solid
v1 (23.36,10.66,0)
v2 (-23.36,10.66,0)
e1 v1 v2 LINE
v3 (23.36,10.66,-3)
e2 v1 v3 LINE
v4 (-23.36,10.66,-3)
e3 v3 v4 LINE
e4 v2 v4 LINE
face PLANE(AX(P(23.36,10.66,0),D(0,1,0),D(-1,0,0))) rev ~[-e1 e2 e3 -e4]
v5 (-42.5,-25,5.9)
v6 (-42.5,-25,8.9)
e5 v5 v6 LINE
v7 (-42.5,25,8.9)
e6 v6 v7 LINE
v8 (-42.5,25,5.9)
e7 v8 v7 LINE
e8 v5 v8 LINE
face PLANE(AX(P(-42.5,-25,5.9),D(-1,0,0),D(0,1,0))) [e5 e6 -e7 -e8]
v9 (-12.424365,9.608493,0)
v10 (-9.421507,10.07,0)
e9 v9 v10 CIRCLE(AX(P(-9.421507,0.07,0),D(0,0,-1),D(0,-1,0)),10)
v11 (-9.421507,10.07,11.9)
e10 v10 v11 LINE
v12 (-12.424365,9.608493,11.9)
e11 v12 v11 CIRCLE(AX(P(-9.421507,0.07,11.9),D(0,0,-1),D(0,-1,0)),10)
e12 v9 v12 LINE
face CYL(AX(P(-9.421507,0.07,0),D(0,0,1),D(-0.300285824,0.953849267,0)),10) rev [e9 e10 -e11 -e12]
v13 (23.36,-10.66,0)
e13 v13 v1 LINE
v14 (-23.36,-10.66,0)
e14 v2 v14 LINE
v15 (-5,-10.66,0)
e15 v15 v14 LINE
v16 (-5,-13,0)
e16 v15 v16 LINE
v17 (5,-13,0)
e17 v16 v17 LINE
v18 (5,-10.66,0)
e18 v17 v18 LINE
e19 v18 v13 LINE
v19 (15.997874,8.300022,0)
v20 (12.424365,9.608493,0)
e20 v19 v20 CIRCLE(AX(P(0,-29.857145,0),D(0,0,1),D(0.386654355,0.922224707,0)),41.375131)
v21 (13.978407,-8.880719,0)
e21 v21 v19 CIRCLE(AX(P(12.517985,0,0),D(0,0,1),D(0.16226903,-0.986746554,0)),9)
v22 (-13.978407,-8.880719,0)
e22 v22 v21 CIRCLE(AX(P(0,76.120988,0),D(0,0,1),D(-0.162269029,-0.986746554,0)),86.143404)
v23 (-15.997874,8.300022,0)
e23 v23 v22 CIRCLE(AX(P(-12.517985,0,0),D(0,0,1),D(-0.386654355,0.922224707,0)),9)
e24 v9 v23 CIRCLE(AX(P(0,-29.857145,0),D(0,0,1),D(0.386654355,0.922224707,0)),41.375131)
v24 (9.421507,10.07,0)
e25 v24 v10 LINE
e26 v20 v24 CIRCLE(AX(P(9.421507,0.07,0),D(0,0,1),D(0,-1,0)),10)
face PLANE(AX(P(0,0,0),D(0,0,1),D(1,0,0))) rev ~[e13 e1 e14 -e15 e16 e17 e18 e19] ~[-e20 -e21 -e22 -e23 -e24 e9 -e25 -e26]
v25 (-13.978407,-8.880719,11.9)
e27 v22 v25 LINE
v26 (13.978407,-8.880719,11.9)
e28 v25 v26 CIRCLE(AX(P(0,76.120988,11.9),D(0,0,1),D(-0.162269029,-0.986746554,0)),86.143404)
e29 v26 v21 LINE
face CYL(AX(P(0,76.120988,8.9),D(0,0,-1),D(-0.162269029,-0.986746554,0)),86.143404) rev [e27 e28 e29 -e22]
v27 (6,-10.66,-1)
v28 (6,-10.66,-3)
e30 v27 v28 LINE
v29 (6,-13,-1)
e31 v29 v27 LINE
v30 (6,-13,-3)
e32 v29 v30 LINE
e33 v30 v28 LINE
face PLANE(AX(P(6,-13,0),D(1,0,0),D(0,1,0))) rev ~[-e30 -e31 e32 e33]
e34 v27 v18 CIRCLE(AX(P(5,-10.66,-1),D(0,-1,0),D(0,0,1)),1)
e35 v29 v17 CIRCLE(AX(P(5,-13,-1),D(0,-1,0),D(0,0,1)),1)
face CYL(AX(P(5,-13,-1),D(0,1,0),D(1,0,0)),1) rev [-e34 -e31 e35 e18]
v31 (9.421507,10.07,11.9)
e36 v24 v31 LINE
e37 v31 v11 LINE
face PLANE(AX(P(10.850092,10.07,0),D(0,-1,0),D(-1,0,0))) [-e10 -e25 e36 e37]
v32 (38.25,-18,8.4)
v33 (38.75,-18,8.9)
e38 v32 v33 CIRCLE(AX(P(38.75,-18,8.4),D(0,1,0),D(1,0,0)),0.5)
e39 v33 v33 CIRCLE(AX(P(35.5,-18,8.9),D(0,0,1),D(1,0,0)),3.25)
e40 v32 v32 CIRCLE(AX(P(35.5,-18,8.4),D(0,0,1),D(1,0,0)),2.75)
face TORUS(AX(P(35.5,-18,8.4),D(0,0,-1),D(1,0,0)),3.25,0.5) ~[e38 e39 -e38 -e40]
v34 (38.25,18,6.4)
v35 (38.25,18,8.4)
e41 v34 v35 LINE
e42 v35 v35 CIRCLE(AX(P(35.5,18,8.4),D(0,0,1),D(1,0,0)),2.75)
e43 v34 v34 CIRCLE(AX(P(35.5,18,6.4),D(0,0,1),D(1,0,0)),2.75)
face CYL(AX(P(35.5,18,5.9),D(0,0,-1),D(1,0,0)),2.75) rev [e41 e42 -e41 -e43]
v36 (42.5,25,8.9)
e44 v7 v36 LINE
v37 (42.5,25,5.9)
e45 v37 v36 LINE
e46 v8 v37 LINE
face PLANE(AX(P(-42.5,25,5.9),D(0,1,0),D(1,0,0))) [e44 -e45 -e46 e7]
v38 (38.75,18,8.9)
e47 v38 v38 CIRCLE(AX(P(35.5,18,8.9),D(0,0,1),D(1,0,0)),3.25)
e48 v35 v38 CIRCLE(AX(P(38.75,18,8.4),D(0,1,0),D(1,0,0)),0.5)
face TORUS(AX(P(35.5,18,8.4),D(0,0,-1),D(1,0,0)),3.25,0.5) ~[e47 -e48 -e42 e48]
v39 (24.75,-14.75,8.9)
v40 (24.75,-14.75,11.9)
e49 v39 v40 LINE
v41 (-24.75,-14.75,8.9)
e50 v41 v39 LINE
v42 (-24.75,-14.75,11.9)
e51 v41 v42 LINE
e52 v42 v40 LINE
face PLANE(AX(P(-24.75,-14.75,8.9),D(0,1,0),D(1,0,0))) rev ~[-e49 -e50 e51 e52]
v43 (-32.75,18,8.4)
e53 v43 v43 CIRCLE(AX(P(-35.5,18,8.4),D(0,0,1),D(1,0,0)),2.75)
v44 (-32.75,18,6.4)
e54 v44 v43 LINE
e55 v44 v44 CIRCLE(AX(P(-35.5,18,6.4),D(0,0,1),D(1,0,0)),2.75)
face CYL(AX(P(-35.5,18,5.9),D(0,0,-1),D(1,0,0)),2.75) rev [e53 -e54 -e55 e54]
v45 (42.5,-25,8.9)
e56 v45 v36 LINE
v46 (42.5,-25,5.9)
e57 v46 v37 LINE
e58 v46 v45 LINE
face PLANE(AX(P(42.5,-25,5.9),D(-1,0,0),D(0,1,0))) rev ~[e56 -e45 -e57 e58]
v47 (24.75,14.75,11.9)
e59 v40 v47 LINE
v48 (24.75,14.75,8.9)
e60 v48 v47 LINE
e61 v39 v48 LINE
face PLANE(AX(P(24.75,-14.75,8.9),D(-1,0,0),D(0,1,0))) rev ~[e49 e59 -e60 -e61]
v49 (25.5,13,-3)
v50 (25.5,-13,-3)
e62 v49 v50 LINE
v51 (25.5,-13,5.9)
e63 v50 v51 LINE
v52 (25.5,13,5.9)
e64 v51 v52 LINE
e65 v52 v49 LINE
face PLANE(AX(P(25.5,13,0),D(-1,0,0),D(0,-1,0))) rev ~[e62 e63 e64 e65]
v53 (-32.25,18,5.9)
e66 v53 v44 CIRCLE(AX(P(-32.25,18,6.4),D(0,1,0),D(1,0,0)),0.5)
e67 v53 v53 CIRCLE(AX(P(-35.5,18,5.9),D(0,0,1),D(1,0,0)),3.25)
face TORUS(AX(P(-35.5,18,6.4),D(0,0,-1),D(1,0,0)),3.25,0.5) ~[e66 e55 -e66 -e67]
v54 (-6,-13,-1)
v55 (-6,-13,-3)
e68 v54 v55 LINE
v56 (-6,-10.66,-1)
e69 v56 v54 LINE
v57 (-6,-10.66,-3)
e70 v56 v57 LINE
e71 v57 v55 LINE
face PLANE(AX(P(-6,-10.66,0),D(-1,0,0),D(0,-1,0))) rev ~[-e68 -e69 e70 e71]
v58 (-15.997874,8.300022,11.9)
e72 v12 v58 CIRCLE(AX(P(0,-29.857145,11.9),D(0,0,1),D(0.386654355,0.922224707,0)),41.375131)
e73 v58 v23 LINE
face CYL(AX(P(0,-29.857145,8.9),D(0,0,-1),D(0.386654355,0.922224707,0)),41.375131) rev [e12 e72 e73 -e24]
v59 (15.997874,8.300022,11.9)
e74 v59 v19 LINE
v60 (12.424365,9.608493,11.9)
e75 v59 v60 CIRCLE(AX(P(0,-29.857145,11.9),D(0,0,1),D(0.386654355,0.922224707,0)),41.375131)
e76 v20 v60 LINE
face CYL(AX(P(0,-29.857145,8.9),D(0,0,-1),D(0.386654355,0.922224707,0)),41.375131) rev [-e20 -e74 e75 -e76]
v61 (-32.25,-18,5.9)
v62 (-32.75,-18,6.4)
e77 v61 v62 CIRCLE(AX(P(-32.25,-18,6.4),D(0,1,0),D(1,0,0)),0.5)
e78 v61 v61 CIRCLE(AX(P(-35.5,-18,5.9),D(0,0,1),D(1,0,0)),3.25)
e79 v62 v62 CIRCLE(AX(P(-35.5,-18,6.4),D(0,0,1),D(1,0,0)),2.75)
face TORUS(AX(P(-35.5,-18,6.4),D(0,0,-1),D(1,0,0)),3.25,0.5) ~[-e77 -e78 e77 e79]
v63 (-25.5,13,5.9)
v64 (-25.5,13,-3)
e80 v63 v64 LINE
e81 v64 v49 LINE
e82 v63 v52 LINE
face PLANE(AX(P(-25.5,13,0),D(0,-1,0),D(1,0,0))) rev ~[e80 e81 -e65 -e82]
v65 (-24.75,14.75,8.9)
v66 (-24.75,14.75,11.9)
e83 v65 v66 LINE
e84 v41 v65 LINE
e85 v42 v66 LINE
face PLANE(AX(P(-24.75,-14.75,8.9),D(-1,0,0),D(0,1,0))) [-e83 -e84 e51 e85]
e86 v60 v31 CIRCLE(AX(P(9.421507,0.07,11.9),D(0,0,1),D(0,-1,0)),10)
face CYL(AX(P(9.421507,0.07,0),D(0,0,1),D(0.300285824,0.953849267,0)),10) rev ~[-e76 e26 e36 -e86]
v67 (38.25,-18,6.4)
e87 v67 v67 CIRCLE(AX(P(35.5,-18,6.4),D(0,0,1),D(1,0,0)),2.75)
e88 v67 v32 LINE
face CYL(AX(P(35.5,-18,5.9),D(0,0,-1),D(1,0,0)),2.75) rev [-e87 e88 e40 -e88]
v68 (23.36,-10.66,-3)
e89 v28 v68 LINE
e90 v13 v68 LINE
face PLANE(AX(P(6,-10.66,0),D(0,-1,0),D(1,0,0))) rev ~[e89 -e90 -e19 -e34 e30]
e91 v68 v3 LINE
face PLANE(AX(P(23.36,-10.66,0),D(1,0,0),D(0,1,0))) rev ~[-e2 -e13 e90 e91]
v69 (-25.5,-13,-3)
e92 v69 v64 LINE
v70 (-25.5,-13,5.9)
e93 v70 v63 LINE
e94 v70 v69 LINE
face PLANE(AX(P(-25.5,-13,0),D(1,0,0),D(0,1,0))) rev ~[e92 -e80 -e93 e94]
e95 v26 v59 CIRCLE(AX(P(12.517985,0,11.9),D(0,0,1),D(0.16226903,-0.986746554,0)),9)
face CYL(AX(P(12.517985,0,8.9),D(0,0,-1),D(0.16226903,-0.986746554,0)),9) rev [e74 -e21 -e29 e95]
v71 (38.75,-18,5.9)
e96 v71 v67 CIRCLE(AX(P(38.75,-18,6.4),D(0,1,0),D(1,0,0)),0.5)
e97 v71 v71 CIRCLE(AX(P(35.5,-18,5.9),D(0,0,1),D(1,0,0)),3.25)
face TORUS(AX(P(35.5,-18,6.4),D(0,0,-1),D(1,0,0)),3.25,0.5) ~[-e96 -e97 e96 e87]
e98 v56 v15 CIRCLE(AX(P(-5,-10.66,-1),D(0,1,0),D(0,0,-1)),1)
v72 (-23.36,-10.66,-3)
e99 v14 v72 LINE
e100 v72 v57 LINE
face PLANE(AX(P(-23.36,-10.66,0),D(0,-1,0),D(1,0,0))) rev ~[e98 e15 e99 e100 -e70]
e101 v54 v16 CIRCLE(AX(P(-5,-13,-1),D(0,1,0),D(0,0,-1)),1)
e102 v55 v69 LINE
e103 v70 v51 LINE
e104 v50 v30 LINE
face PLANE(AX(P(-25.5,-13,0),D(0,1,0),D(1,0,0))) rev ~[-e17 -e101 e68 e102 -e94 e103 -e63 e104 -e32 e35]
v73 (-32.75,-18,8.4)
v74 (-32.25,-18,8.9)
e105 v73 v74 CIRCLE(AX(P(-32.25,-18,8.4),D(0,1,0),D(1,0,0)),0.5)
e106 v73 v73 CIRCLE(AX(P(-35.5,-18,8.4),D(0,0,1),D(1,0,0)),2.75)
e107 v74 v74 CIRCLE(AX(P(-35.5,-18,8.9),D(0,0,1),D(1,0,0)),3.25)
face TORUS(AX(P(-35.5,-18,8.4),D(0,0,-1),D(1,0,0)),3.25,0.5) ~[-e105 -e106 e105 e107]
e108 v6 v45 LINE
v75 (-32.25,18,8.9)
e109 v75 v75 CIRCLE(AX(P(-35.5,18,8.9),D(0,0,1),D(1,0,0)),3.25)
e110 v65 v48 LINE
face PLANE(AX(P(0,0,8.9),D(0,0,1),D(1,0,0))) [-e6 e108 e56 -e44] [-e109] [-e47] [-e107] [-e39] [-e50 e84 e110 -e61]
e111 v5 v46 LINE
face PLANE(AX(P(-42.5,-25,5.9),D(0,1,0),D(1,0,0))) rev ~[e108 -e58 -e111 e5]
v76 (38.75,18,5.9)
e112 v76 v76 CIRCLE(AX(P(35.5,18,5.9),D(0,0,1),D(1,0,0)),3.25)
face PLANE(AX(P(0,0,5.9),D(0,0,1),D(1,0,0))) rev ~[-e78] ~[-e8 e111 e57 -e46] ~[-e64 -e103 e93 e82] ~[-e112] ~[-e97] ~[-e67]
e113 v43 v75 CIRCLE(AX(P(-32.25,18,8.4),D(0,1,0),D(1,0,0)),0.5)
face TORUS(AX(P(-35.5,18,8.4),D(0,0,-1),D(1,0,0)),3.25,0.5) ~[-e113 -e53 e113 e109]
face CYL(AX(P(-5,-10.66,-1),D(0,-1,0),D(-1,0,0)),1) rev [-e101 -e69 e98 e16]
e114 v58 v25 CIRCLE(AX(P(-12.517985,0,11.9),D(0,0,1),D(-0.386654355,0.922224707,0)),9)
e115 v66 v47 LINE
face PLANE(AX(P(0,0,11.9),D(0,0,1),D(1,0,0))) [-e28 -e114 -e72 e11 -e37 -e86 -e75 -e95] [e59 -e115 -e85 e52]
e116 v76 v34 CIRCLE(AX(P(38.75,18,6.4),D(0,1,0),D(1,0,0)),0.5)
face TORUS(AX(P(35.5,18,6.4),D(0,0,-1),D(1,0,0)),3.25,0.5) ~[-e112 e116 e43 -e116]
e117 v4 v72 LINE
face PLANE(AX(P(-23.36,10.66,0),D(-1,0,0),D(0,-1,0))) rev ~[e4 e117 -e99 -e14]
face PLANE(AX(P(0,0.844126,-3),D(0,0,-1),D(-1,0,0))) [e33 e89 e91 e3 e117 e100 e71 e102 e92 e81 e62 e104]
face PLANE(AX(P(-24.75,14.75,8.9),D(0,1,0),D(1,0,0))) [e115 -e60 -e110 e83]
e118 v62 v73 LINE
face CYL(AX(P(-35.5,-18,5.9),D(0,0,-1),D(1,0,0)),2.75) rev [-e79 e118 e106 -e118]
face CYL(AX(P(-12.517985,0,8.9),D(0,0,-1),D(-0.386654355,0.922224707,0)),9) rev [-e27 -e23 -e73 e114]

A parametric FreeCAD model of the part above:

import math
import FreeCAD as App
import Part
import Sketcher


def edges_at(feature, points):
    """Names of the edges that pass closest to the given points."""
    edges = feature.Shape.Edges
    near = lambda p: min(range(len(edges)), key=lambda i: edges[i].distToShape(Part.Vertex(*p))[0])
    return sorted({f"Edge{near(p) + 1}" for p in points})


def add_polygon(sketch, points):
    """Adds a closed chain of lines whose ends are joined by coincident constraints."""
    first, n = sketch.GeometryCount, len(points)
    for a, b in zip(points, points[1:] + points[:1]):
        sketch.addGeometry(Part.LineSegment(App.Vector(*a, 0), App.Vector(*b, 0)), False)
    for i in range(n):
        sketch.addConstraint(Sketcher.Constraint("Coincident", first + i, 2, first + (i + 1) % n, 1))

doc = App.newDocument("Part")
params = doc.addObject("Spreadsheet::Sheet", "Params")
for row, (alias, value) in enumerate([
    ("sketch1_radius", "9 mm"),
    ("sketch1_width", "51 mm"),
    ("sketch1_height", "26 mm"),
    ("pad1_length", "5.9 mm"),
    ("sketch2_radius", "9 mm"),
    ("sketch2_diameter", "5.5 mm"),
    ("sketch2_width", "85 mm"),
    ("sketch2_height", "50 mm"),
    ("pad2_length", "3 mm"),
    ("sketch3_radius", "9 mm"),
    ("sketch3_width", "49.5 mm"),
    ("sketch3_height", "29.5 mm"),
    ("pad3_length", "3 mm"),
    ("fillet_radius", "0.5 mm"),
    ("pad4_length", "11.9 mm"),
    ("fillet2_radius", "10 mm"),
    ("sketch5_width", "51 mm"),
    ("sketch5_height", "26 mm"),
    ("sketch5_width2", "19.5 mm"),
    ("sketch5_width3", "46.72 mm"),
    ("sketch5_height2", "21.32 mm"),
    ("pad5_length", "3 mm"),
    ("fillet3_radius", "1 mm"),
], start=1):
    params.set(f"A{row}", alias)
    params.set(f"B{row}", "=" + value)
    params.setAlias(f"B{row}", alias)

body = doc.addObject("PartDesign::Body", "Body")

sketch1 = body.newObject("Sketcher::SketchObject", "Sketch")
sketch1.AttachmentSupport = (doc.getObject("XY_Plane"), [""])
sketch1.MapMode = "FlatFace"
add_polygon(sketch1, [(-26, 13), (-26, -13), (26, -13), (26, 13)])
sketch1.addGeometry(Part.ArcOfCircle(Part.Circle(App.Vector(-13, 0, 0), App.Vector(0, 0, 1), 9), math.radians(113), math.radians(261)), False)
sketch1.addGeometry(Part.ArcOfCircle(Part.Circle(App.Vector(0, -30, 0), App.Vector(0, 0, 1), 41), math.radians(67), math.radians(113)), False)
sketch1.addGeometry(Part.ArcOfCircle(Part.Circle(App.Vector(13, 0, 0), App.Vector(0, 0, 1), 9), math.radians(-81), math.radians(67)), False)
sketch1.addGeometry(Part.ArcOfCircle(Part.Circle(App.Vector(0, 76, 0), App.Vector(0, 0, 1), 86), math.radians(-99.34), math.radians(-80.66)), False)
sketch1.addConstraint([
    Sketcher.Constraint("Tangent", 4, 1, 5, 2),
    Sketcher.Constraint("Tangent", 5, 1, 6, 2),
    Sketcher.Constraint("Tangent", 6, 1, 7, 2),
    Sketcher.Constraint("Tangent", 7, 1, 4, 2),
    Sketcher.Constraint("Vertical", 0),
    Sketcher.Constraint("Horizontal", 1),
    Sketcher.Constraint("Vertical", 2),
    Sketcher.Constraint("Horizontal", 3),
    Sketcher.Constraint("Equal", 4, 6),
    Sketcher.Constraint("Symmetric", 4, 3, 6, 3, -1, 1),
    Sketcher.Constraint("Symmetric", 0, 2, 2, 2, -1, 1),
    Sketcher.Constraint("PointOnObject", 4, 3, -1),
    Sketcher.Constraint("Radius", 4, 9.0),
    Sketcher.Constraint("DistanceX", 1, 1, 1, 2, 51.0),
    Sketcher.Constraint("DistanceY", 0, 2, 0, 1, 26.0),
    Sketcher.Constraint("Radius", 5, 41.375131),
    Sketcher.Constraint("Radius", 7, 86.143404),
    Sketcher.Constraint("DistanceY", -1, 1, 7, 3, 76.120988),
])
sketch1.setExpression("Constraints[16]", "Params.sketch1_radius")
sketch1.setExpression("Constraints[17]", "Params.sketch1_width")
sketch1.setExpression("Constraints[18]", "Params.sketch1_height")
pad1 = body.newObject("PartDesign::Pad", "Pad")
pad1.Profile = sketch1
pad1.setExpression("Length", "Params.pad1_length")

sketch2 = body.newObject("Sketcher::SketchObject", "Sketch001")
sketch2.AttachmentSupport = (doc.getObject("XY_Plane"), [""])
sketch2.MapMode = "FlatFace"
sketch2.AttachmentOffset = App.Placement(App.Vector(0, 0, 5.9), App.Rotation())
add_polygon(sketch2, [(-42.5, 25), (-42.5, -25), (42.5, -25), (42.5, 25)])
sketch2.addGeometry(Part.Circle(App.Vector(-35.5, -18, 0), App.Vector(0, 0, 1), 2.8), False)
sketch2.addGeometry(Part.Circle(App.Vector(35.5, -18, 0), App.Vector(0, 0, 1), 2.8), False)
sketch2.addGeometry(Part.Circle(App.Vector(-35.5, 18, 0), App.Vector(0, 0, 1), 2.8), False)
sketch2.addGeometry(Part.ArcOfCircle(Part.Circle(App.Vector(0, 76.1, 0), App.Vector(0, 0, 1), 86.1), math.radians(-99.34), math.radians(-80.66)), False)
sketch2.addGeometry(Part.ArcOfCircle(Part.Circle(App.Vector(-12.5, 0, 0), App.Vector(0, 0, 1), 9), math.radians(113), math.radians(261)), False)
sketch2.addGeometry(Part.ArcOfCircle(Part.Circle(App.Vector(0, -29.9, 0), App.Vector(0, 0, 1), 41.4), math.radians(67), math.radians(113)), False)
sketch2.addGeometry(Part.ArcOfCircle(Part.Circle(App.Vector(12.5, 0, 0), App.Vector(0, 0, 1), 9), math.radians(-81), math.radians(67)), False)
sketch2.addGeometry(Part.Circle(App.Vector(35.5, 18, 0), App.Vector(0, 0, 1), 2.8), False)
sketch2.addConstraint([
    Sketcher.Constraint("Tangent", 7, 1, 8, 2),
    Sketcher.Constraint("Tangent", 8, 1, 9, 2),
    Sketcher.Constraint("Tangent", 9, 1, 10, 2),
    Sketcher.Constraint("Tangent", 10, 1, 7, 2),
    Sketcher.Constraint("Vertical", 0),
    Sketcher.Constraint("Horizontal", 1),
    Sketcher.Constraint("Vertical", 2),
    Sketcher.Constraint("Horizontal", 3),
    Sketcher.Constraint("Equal", 4, 5),
    Sketcher.Constraint("Equal", 5, 6),
    Sketcher.Constraint("Equal", 8, 10),
    Sketcher.Constraint("Equal", 6, 11),
    Sketcher.Constraint("Symmetric", 5, 3, 6, 3, -1, 1),
    Sketcher.Constraint("Symmetric", 8, 3, 10, 3, -1, 1),
    Sketcher.Constraint("Symmetric", 4, 3, 11, 3, -1, 1),
    Sketcher.Constraint("Symmetric", 0, 2, 2, 2, -1, 1),
    Sketcher.Constraint("Symmetric", 4, 3, 5, 3, -2),
    Sketcher.Constraint("PointOnObject", 7, 3, -2),
    Sketcher.Constraint("Radius", 8, 9.0),
    Sketcher.Constraint("Diameter", 4, 5.5),
    Sketcher.Constraint("DistanceX", 1, 1, 1, 2, 85.0),
    Sketcher.Constraint("DistanceY", 0, 2, 0, 1, 50.0),
    Sketcher.Constraint("DistanceY", 4, 3, -1, 1, 18.0),
    Sketcher.Constraint("DistanceX", 4, 3, 5, 3, 71.0),
    Sketcher.Constraint("Radius", 9, 41.375131),
    Sketcher.Constraint("Radius", 7, 86.143404),
    Sketcher.Constraint("DistanceY", -1, 1, 7, 3, 76.120988),
])
sketch2.setExpression("Constraints[22]", "Params.sketch2_radius")
sketch2.setExpression("Constraints[23]", "Params.sketch2_diameter")
sketch2.setExpression("Constraints[24]", "Params.sketch2_width")
sketch2.setExpression("Constraints[25]", "Params.sketch2_height")
pad2 = body.newObject("PartDesign::Pad", "Pad001")
pad2.Profile = sketch2
pad2.setExpression("Length", "Params.pad2_length")

sketch3 = body.newObject("Sketcher::SketchObject", "Sketch002")
sketch3.AttachmentSupport = (doc.getObject("XY_Plane"), [""])
sketch3.MapMode = "FlatFace"
sketch3.AttachmentOffset = App.Placement(App.Vector(0, 0, 8.9), App.Rotation())
add_polygon(sketch3, [(-25, 15), (-25, -15), (25, -15), (25, 15)])
sketch3.addGeometry(Part.ArcOfCircle(Part.Circle(App.Vector(0, 76, 0), App.Vector(0, 0, 1), 86), math.radians(-99.34), math.radians(-80.66)), False)
sketch3.addGeometry(Part.ArcOfCircle(Part.Circle(App.Vector(-13, 0, 0), App.Vector(0, 0, 1), 9), math.radians(113), math.radians(261)), False)
sketch3.addGeometry(Part.ArcOfCircle(Part.Circle(App.Vector(0, -30, 0), App.Vector(0, 0, 1), 41), math.radians(67), math.radians(113)), False)
sketch3.addGeometry(Part.ArcOfCircle(Part.Circle(App.Vector(13, 0, 0), App.Vector(0, 0, 1), 9), math.radians(-81), math.radians(67)), False)
sketch3.addConstraint([
    Sketcher.Constraint("Tangent", 4, 1, 5, 2),
    Sketcher.Constraint("Tangent", 5, 1, 6, 2),
    Sketcher.Constraint("Tangent", 6, 1, 7, 2),
    Sketcher.Constraint("Tangent", 7, 1, 4, 2),
    Sketcher.Constraint("Vertical", 0),
    Sketcher.Constraint("Horizontal", 1),
    Sketcher.Constraint("Vertical", 2),
    Sketcher.Constraint("Horizontal", 3),
    Sketcher.Constraint("Equal", 5, 7),
    Sketcher.Constraint("Symmetric", 5, 3, 7, 3, -1, 1),
    Sketcher.Constraint("Symmetric", 0, 2, 2, 2, -1, 1),
    Sketcher.Constraint("PointOnObject", 4, 3, -2),
    Sketcher.Constraint("Radius", 5, 9.0),
    Sketcher.Constraint("DistanceX", 1, 1, 1, 2, 49.5),
    Sketcher.Constraint("DistanceY", 0, 2, 0, 1, 29.5),
    Sketcher.Constraint("Radius", 6, 41.375131),
    Sketcher.Constraint("Radius", 4, 86.143404),
    Sketcher.Constraint("DistanceY", -1, 1, 4, 3, 76.120988),
])
sketch3.setExpression("Constraints[16]", "Params.sketch3_radius")
sketch3.setExpression("Constraints[17]", "Params.sketch3_width")
sketch3.setExpression("Constraints[18]", "Params.sketch3_height")
pad3 = body.newObject("PartDesign::Pad", "Pad002")
pad3.Profile = sketch3
pad3.setExpression("Length", "Params.pad3_length")
doc.recompute()

fillet = body.newObject("PartDesign::Fillet", "Fillet")
fillet.Base = (pad3, edges_at(pad3, [
    (32.75, -18, 5.9),
    (-38.25, 18, 5.9),
    (32.75, 18, 5.9),
    (-38.25, -18, 5.9),
    (-38.25, 18, 8.9),
    (32.75, 18, 8.9),
    (32.75, -18, 8.9),
    (-38.25, -18, 8.9),
]))
fillet.setExpression("Radius", "Params.fillet_radius")

sketch4 = body.newObject("Sketcher::SketchObject", "Sketch003")
sketch4.AttachmentSupport = (doc.getObject("XY_Plane"), [""])
sketch4.MapMode = "FlatFace"
sketch4.addGeometry([
    Part.LineSegment(App.Vector(11, 10, 0), App.Vector(-11, 10, 0)),
    Part.ArcOfCircle(Part.Circle(App.Vector(0, -30, 0), App.Vector(0, 0, 1), 41), math.radians(75), math.radians(105)),
], False)
sketch4.addConstraint([
    Sketcher.Constraint("Coincident", 0, 1, 1, 1),
    Sketcher.Constraint("Coincident", 1, 2, 0, 2),
    Sketcher.Constraint("Horizontal", 0),
    Sketcher.Constraint("PointOnObject", 1, 3, -2),
    Sketcher.Constraint("DistanceY", -1, 1, 0, 1, 10.07),
    Sketcher.Constraint("Radius", 1, 41.375131),
    Sketcher.Constraint("DistanceX", 0, 2, 0, 1, 21.700184),
])
pad4 = body.newObject("PartDesign::Pad", "Pad003")
pad4.Profile = sketch4
pad4.setExpression("Length", "Params.pad4_length")
doc.recompute()

fillet2 = body.newObject("PartDesign::Fillet", "Fillet001")
fillet2.Base = (pad4, edges_at(pad4, [(10.85, 10.07, 5.95), (-10.85, 10.07, 5.95)]))
fillet2.setExpression("Radius", "Params.fillet2_radius")

sketch5 = body.newObject("Sketcher::SketchObject", "Sketch004")
sketch5.AttachmentSupport = (doc.getObject("XY_Plane"), [""])
sketch5.MapMode = "FlatFace"
add_polygon(sketch5, [(23.4, -10.7), (23.4, 10.7), (-23.4, 10.7), (-23.4, -10.7), (-6, -10.7), (-6, -13), (-25.5, -13), (-25.5, 13), (25.5, 13), (25.5, -13), (6, -13), (6, -10.7)])
sketch5.addConstraint([
    Sketcher.Constraint("Vertical", 0),
    Sketcher.Constraint("Horizontal", 1),
    Sketcher.Constraint("Vertical", 2),
    Sketcher.Constraint("Horizontal", 3),
    Sketcher.Constraint("Vertical", 4),
    Sketcher.Constraint("Horizontal", 5),
    Sketcher.Constraint("Vertical", 6),
    Sketcher.Constraint("Horizontal", 7),
    Sketcher.Constraint("Vertical", 8),
    Sketcher.Constraint("Horizontal", 9),
    Sketcher.Constraint("Vertical", 10),
    Sketcher.Constraint("Horizontal", 11),
    Sketcher.Constraint("Symmetric", 0, 2, 2, 2, -1, 1),
    Sketcher.Constraint("Symmetric", 5, 2, 7, 2, -1, 1),
    Sketcher.Constraint("Symmetric", 4, 2, 9, 2, -2),
    Sketcher.Constraint("Horizontal", 3, 2, 10, 2),
    Sketcher.Constraint("DistanceX", 7, 1, 7, 2, 51.0),
    Sketcher.Constraint("DistanceY", 6, 1, 6, 2, 26.0),
    Sketcher.Constraint("DistanceX", 5, 2, 5, 1, 19.5),
    Sketcher.Constraint("DistanceX", 1, 2, 1, 1, 46.72),
    Sketcher.Constraint("DistanceY", 0, 1, 0, 2, 21.32),
])
sketch5.setExpression("Constraints[28]", "Params.sketch5_width")
sketch5.setExpression("Constraints[29]", "Params.sketch5_height")
sketch5.setExpression("Constraints[30]", "Params.sketch5_width2")
sketch5.setExpression("Constraints[31]", "Params.sketch5_width3")
sketch5.setExpression("Constraints[32]", "Params.sketch5_height2")
pad5 = body.newObject("PartDesign::Pad", "Pad004")
pad5.Profile = sketch5
pad5.setExpression("Length", "Params.pad5_length")
pad5.Reversed = True
doc.recompute()

fillet3 = body.newObject("PartDesign::Fillet", "Fillet002")
fillet3.Base = (pad5, edges_at(pad5, [(-6, -11.83, 0), (6, -11.83, 0)]))
fillet3.setExpression("Radius", "Params.fillet3_radius")

doc.recompute()
